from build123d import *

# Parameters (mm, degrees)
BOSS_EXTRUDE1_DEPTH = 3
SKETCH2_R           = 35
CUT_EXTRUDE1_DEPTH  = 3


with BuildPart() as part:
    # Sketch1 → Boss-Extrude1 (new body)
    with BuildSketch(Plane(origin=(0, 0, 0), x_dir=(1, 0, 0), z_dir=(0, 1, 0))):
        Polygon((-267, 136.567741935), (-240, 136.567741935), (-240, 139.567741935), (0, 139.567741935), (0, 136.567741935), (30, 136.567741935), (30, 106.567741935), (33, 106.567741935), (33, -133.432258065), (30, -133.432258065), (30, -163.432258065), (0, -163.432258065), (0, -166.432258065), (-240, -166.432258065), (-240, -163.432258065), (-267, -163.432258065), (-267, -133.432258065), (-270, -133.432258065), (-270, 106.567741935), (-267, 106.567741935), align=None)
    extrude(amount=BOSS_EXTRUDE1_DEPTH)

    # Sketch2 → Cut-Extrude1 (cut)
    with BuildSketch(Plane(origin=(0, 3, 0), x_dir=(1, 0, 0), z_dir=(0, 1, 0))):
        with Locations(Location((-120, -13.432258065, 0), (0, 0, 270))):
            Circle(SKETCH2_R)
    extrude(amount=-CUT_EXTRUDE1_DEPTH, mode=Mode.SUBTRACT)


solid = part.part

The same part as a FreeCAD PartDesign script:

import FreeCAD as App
import Part
import Sketcher

V = App.Vector

doc = App.newDocument("Part")
body = doc.addObject("PartDesign::Body", "Body")

sketch1 = doc.addObject("Sketcher::SketchObject", "Sketch")
body.addObject(sketch1)
sketch1.AttachmentSupport = (doc.XZ_Plane, [""])
sketch1.MapMode = "FlatFace"
sketch1.addGeometry([
    Part.LineSegment(V(-240, -136.6, 0), V(-267, -136.6, 0)),
    Part.LineSegment(V(-267, -136.6, 0), V(-267, -106.6, 0)),
    Part.LineSegment(V(-267, -106.6, 0), V(-270, -106.6, 0)),
    Part.LineSegment(V(-270, -106.6, 0), V(-270, 133.4, 0)),
    Part.LineSegment(V(-270, 133.4, 0), V(-267, 133.4, 0)),
    Part.LineSegment(V(-267, 133.4, 0), V(-267, 163.4, 0)),
    Part.LineSegment(V(-267, 163.4, 0), V(-240, 163.4, 0)),
    Part.LineSegment(V(-240, 163.4, 0), V(-240, 166.4, 0)),
    Part.LineSegment(V(-240, 166.4, 0), V(0, 166.4, 0)),
    Part.LineSegment(V(0, 166.4, 0), V(0, 163.4, 0)),
    Part.LineSegment(V(0, 163.4, 0), V(30, 163.4, 0)),
    Part.LineSegment(V(30, 163.4, 0), V(30, 133.4, 0)),
    Part.LineSegment(V(30, 133.4, 0), V(33, 133.4, 0)),
    Part.LineSegment(V(33, 133.4, 0), V(33, -106.6, 0)),
    Part.LineSegment(V(33, -106.6, 0), V(30, -106.6, 0)),
    Part.LineSegment(V(30, -106.6, 0), V(30, -136.6, 0)),
    Part.LineSegment(V(30, -136.6, 0), V(0, -136.6, 0)),
    Part.LineSegment(V(0, -136.6, 0), V(0, -139.6, 0)),
    Part.LineSegment(V(0, -139.6, 0), V(-240, -139.6, 0)),
    Part.LineSegment(V(-240, -139.6, 0), V(-240, -136.6, 0)),
], False)
sketch1.addConstraint([
    Sketcher.Constraint("Coincident", 0, 2, 1, 1),
    Sketcher.Constraint("Coincident", 1, 2, 2, 1),
    Sketcher.Constraint("Coincident", 2, 2, 3, 1),
    Sketcher.Constraint("Coincident", 3, 2, 4, 1),
    Sketcher.Constraint("Coincident", 4, 2, 5, 1),
    Sketcher.Constraint("Coincident", 5, 2, 6, 1),
    Sketcher.Constraint("Coincident", 6, 2, 7, 1),
    Sketcher.Constraint("Coincident", 7, 2, 8, 1),
    Sketcher.Constraint("Coincident", 8, 2, 9, 1),
    Sketcher.Constraint("Coincident", 9, 2, 10, 1),
    Sketcher.Constraint("Coincident", 10, 2, 11, 1),
    Sketcher.Constraint("Coincident", 11, 2, 12, 1),
    Sketcher.Constraint("Coincident", 12, 2, 13, 1),
    Sketcher.Constraint("Coincident", 13, 2, 14, 1),
    Sketcher.Constraint("Coincident", 14, 2, 15, 1),
    Sketcher.Constraint("Coincident", 15, 2, 16, 1),
    Sketcher.Constraint("Coincident", 16, 2, 17, 1),
    Sketcher.Constraint("Coincident", 17, 2, 18, 1),
    Sketcher.Constraint("Coincident", 18, 2, 19, 1),
    Sketcher.Constraint("Coincident", 19, 2, 0, 1),
    Sketcher.Constraint("Horizontal", 0),
    Sketcher.Constraint("Vertical", 1),
    Sketcher.Constraint("Horizontal", 2),
    Sketcher.Constraint("Vertical", 3),
    Sketcher.Constraint("Horizontal", 4),
    Sketcher.Constraint("Vertical", 5),
    Sketcher.Constraint("Horizontal", 6),
    Sketcher.Constraint("Vertical", 7),
    Sketcher.Constraint("Horizontal", 8),
    Sketcher.Constraint("Vertical", 9),
    Sketcher.Constraint("Horizontal", 10),
    Sketcher.Constraint("Vertical", 11),
    Sketcher.Constraint("Horizontal", 12),
    Sketcher.Constraint("Vertical", 13),
    Sketcher.Constraint("Horizontal", 14),
    Sketcher.Constraint("Vertical", 15),
    Sketcher.Constraint("Horizontal", 16),
    Sketcher.Constraint("Vertical", 17),
    Sketcher.Constraint("Horizontal", 18),
    Sketcher.Constraint("Vertical", 19),
    Sketcher.Constraint("PointOnObject", 8, 2, -2),
    Sketcher.Constraint("PointOnObject", 16, 2, -2),
    Sketcher.Constraint("Horizontal", 6, 2, 9, 2),
    Sketcher.Constraint("Horizontal", 4, 2, 11, 2),
    Sketcher.Constraint("Horizontal", 2, 2, 13, 2),
    Sketcher.Constraint("Horizontal", 0, 2, 15, 2),
    Sketcher.Constraint("Vertical", 1, 2, 4, 2),
    Sketcher.Constraint("Vertical", 11, 2, 14, 2),
    Sketcher.Constraint("Vertical", 7, 2, 18, 2),
    Sketcher.Constraint("Equal", 4, 12),
    Sketcher.Constraint("Equal", 16, 1),
    Sketcher.Constraint("Equal", 18, 3),
    Sketcher.Constraint("Equal", 1, 5),
    Sketcher.Constraint("Equal", 14, 7),
    Sketcher.Constraint("Equal", 9, 17),
    Sketcher.Constraint("DistanceX", 0, 2, 0, 1, 27.0),
    Sketcher.Constraint("DistanceX", 2, 2, 2, 1, 3.0),
    Sketcher.Constraint("DistanceX", 8, 1, 8, 2, 240.0),
    Sketcher.Constraint("DistanceX", 10, 1, 10, 2, 30.0),
    Sketcher.Constraint("DistanceY", 0, 2, -1, 1, 136.567742),
])
pad1 = doc.addObject("PartDesign::Pad", "Pad")
body.addObject(pad1)
pad1.Profile = sketch1
pad1.Length = 3
pad1.Reversed = True

sketch2 = doc.addObject("Sketcher::SketchObject", "Sketch001")
body.addObject(sketch2)
sketch2.AttachmentSupport = (doc.XZ_Plane, [""])
sketch2.MapMode = "FlatFace"
sketch2.AttachmentOffset = App.Placement(V(0, 0, -3), App.Rotation())
sketch2.addGeometry(Part.Circle(V(-120, 13, 0), V(0, 0, 1), 35), False)
sketch2.addConstraint([
    Sketcher.Constraint("Diameter", 0, 70.0),
    Sketcher.Constraint("DistanceX", 0, 3, -1, 1, 120.0),
    Sketcher.Constraint("DistanceY", -1, 1, 0, 3, 13.432258),
])
pocket1 = doc.addObject("PartDesign::Pocket", "Pocket")
body.addObject(pocket1)
pocket1.Profile = sketch2
pocket1.Length = 3
pocket1.Reversed = True

doc.recompute()
